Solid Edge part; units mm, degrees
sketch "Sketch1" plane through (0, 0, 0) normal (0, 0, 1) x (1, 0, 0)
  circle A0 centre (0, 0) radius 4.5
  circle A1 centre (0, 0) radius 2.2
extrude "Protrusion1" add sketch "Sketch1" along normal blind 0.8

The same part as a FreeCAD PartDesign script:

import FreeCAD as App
import Part
import Sketcher
from FreeCAD import Vector
Q = App.Units.Quantity

doc = App.newDocument("Part")
body = doc.addObject("PartDesign::Body", "Body")

# Sketch on XY plane
sketch1 = body.newObject("Sketcher::SketchObject", "Sketch")
sketch1.AttachmentSupport = (doc.getObject("XY_Plane"), [""])
sketch1.MapMode = "FlatFace"
sketch1.addGeometry([
    Part.Circle(Vector(0, 0, 0), Vector(0, 0, 1), 4.5),
    Part.Circle(Vector(0, 0, 0), Vector(0, 0, 1), 2.2),
], False)
sketch1.addConstraint([
    Sketcher.Constraint("Coincident", 0, 3, -1, 1),
    Sketcher.Constraint("Coincident", 1, 3, -1, 1),
    Sketcher.Constraint("Diameter", 0, Q("9 mm")),
    Sketcher.Constraint("Diameter", 1, Q("4.4 mm")),
])
pad1 = body.newObject("PartDesign::Pad", "Pad")
pad1.Profile = sketch1
pad1.Length = 0.8

doc.recompute()
